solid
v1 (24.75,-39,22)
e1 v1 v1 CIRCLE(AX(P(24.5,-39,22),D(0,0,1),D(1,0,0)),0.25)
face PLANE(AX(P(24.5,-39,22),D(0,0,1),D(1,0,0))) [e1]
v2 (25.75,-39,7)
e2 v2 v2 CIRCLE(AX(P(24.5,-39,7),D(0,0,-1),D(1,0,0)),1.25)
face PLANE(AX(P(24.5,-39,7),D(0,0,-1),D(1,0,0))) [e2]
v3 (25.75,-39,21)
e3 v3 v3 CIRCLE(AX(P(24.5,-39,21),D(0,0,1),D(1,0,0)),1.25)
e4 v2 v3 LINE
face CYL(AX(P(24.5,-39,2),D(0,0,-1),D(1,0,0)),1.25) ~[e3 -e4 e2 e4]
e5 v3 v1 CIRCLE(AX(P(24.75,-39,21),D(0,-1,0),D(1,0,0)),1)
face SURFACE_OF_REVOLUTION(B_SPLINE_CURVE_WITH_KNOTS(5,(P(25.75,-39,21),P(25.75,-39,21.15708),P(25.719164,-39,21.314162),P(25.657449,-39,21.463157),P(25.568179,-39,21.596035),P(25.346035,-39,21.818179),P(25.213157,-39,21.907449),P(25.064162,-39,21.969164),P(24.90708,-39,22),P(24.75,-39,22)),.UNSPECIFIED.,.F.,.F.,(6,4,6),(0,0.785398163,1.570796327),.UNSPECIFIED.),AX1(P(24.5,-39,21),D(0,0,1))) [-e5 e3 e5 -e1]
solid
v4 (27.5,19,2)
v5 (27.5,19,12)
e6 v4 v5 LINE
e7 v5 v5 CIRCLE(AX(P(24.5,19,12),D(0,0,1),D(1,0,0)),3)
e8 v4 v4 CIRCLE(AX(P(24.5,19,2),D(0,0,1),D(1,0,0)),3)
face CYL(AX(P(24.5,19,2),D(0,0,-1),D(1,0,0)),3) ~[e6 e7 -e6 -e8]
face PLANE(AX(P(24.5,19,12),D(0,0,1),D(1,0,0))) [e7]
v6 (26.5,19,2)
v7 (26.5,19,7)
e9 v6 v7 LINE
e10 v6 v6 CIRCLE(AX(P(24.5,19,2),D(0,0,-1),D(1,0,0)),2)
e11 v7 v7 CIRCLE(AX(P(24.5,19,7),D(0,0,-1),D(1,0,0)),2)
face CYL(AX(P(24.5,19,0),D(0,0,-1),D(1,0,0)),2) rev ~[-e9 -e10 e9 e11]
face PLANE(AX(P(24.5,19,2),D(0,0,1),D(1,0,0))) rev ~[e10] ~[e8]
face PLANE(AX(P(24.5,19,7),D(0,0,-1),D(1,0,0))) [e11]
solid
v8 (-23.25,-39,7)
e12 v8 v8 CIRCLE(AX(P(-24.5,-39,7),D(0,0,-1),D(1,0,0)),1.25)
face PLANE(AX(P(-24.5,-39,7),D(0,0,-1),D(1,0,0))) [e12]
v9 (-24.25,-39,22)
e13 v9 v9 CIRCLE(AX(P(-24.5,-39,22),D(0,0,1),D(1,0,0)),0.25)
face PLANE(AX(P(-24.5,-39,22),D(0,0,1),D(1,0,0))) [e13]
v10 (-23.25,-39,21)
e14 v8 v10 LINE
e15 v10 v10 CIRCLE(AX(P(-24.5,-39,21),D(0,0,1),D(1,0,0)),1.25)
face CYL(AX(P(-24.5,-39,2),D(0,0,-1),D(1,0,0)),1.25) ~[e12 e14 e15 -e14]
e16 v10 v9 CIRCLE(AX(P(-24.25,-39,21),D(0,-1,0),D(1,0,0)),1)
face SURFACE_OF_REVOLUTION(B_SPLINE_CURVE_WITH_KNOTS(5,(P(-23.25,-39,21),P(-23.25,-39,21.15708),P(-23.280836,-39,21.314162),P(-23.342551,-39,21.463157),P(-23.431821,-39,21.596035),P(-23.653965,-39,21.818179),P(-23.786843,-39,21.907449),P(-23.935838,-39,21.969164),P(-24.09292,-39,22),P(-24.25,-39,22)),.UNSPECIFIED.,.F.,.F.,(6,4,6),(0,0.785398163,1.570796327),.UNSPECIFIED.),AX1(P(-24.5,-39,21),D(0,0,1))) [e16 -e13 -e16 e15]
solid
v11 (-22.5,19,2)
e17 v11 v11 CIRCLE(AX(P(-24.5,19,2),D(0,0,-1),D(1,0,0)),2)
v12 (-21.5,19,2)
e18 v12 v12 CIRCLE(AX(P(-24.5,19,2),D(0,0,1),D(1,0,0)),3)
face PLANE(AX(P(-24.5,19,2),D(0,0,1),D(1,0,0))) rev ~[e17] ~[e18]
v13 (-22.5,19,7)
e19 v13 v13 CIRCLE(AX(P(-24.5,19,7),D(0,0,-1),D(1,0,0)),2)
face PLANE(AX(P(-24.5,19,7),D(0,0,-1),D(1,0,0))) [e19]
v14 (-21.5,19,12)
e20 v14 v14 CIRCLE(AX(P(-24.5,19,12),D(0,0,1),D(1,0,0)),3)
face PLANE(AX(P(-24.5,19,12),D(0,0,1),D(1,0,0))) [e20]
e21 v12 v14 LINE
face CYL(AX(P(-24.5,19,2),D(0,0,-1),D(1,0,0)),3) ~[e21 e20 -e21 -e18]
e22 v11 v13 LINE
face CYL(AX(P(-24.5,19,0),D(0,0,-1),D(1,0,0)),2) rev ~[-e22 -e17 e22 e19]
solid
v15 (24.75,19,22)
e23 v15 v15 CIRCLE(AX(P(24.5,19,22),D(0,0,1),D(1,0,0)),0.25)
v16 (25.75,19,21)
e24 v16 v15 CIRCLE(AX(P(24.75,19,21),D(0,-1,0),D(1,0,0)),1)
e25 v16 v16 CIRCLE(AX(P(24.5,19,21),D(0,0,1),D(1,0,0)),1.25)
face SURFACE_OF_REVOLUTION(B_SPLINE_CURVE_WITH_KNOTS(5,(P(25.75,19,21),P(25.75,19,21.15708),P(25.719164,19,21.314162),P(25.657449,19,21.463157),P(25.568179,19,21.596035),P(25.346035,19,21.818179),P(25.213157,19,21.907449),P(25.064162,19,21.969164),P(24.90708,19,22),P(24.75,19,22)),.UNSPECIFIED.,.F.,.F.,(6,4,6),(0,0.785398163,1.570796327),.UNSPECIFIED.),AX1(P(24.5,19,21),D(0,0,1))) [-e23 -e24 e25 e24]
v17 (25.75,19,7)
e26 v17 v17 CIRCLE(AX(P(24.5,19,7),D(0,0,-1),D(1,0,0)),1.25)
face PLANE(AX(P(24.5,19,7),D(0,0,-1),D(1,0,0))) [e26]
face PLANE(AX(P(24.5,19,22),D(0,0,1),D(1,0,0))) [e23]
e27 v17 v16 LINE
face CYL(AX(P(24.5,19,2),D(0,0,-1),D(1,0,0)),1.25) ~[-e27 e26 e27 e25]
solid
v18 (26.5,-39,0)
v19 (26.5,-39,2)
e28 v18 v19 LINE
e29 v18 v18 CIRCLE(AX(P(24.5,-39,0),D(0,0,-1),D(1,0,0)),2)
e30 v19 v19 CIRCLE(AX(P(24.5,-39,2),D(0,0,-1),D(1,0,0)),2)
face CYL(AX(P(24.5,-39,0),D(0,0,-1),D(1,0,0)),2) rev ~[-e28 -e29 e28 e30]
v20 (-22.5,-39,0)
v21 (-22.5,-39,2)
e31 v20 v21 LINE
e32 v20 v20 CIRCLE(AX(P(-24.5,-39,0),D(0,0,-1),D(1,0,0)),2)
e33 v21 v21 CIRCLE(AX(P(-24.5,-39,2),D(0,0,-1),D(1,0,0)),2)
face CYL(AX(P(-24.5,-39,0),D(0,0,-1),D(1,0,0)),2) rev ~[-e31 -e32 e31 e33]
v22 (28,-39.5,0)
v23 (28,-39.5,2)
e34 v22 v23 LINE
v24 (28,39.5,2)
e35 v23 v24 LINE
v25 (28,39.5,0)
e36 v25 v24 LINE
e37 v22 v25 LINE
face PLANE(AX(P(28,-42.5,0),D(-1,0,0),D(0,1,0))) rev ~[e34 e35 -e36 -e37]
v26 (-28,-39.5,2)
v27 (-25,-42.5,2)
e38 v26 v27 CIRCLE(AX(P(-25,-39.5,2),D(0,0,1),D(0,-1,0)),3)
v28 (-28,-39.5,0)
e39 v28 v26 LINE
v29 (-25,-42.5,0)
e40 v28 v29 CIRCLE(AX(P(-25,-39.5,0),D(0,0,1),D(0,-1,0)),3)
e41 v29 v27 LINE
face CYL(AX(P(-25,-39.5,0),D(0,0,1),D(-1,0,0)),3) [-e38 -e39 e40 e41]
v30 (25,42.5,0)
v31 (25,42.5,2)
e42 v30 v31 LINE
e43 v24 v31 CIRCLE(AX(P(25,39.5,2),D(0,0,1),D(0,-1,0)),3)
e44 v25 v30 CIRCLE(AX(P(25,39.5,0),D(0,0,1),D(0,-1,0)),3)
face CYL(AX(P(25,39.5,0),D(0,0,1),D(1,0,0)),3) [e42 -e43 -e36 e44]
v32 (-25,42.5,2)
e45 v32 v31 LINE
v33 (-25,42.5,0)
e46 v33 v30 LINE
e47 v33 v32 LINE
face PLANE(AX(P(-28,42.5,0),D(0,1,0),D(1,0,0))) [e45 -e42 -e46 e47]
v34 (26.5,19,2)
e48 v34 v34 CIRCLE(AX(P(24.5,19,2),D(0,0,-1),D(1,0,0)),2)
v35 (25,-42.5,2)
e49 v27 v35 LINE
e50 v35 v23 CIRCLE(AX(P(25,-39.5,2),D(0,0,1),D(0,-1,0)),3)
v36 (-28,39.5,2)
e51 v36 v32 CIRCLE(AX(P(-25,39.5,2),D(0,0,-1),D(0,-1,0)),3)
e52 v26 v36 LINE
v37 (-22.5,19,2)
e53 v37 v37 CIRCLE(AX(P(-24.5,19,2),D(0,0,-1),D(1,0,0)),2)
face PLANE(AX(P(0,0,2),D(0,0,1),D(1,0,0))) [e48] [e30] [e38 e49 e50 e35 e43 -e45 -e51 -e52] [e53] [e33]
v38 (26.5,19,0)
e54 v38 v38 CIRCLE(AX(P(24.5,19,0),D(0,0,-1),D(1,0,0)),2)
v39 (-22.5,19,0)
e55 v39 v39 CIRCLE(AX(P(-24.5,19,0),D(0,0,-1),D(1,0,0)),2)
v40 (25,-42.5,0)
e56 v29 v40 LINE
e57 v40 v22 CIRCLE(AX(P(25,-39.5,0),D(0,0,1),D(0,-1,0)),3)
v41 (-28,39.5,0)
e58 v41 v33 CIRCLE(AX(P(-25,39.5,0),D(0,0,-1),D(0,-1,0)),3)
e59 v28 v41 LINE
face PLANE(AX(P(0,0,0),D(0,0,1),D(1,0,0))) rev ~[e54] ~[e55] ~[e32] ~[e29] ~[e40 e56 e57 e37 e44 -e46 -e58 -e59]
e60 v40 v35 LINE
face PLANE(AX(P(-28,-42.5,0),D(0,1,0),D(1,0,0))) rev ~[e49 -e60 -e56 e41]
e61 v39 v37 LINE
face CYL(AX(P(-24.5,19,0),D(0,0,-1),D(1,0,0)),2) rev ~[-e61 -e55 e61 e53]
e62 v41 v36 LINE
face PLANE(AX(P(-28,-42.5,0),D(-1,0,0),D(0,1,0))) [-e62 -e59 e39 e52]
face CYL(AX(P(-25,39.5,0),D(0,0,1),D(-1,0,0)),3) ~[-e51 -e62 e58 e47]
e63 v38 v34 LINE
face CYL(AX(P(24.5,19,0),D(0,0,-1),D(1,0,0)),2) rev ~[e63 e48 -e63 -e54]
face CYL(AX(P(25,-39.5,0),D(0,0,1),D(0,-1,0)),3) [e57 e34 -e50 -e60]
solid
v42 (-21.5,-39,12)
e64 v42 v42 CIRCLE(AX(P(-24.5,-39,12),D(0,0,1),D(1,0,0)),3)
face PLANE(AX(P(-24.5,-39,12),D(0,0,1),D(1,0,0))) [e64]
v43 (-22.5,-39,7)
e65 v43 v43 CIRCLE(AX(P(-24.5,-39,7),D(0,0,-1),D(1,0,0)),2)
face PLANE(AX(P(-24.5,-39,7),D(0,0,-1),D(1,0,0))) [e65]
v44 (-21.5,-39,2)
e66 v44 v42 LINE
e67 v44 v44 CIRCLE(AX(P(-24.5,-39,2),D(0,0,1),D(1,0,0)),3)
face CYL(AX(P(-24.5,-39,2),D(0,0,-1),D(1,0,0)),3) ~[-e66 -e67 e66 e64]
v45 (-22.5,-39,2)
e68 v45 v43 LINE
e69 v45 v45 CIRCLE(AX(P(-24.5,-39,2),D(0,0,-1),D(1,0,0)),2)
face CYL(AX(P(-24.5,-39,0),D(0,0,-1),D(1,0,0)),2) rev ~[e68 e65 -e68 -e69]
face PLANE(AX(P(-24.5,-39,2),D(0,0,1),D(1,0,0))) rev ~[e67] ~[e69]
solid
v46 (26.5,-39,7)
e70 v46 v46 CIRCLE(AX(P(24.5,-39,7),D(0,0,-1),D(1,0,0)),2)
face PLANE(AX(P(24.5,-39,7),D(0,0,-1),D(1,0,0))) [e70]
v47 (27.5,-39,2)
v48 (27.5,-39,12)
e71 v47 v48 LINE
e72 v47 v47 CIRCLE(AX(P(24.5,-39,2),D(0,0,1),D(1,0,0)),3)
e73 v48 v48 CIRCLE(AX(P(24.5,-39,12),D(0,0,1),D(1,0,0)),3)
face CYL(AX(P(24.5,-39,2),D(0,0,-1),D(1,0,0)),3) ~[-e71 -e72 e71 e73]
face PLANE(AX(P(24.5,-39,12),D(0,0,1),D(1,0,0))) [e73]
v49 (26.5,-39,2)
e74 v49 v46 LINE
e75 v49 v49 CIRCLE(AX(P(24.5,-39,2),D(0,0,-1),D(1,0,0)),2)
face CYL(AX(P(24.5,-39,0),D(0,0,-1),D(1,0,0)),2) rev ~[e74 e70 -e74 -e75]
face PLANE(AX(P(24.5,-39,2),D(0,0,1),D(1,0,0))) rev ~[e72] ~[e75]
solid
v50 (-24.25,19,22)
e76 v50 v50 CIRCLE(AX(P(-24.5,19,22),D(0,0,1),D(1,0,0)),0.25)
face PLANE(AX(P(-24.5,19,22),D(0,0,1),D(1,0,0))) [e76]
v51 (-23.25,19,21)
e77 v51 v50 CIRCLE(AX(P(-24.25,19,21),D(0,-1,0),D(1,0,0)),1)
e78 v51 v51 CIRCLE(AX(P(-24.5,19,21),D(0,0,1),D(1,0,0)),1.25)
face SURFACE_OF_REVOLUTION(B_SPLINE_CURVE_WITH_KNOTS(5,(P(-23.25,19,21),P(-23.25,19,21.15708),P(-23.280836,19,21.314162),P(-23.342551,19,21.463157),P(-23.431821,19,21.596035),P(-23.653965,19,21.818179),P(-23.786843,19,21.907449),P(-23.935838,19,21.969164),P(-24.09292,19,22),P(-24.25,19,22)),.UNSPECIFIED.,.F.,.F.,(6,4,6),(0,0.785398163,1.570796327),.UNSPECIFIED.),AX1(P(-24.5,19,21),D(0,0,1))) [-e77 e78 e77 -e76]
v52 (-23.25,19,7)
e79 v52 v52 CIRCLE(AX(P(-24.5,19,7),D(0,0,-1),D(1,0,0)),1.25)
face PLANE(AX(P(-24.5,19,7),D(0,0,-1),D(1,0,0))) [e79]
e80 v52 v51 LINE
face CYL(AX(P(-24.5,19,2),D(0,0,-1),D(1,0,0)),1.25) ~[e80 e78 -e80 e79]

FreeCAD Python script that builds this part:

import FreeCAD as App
import Part
import Sketcher

V = App.Vector
Q = App.Units.Quantity


def edges_at(feature, points):
    """Names of the edges that pass closest to the given points."""
    edges = feature.Shape.Edges
    near = lambda p: min(range(len(edges)), key=lambda i: edges[i].distToShape(Part.Vertex(*p))[0])
    return sorted({f"Edge{near(p) + 1}" for p in points})

doc = App.newDocument("Part")
body = doc.addObject("PartDesign::Body", "Body")

sketch1 = body.newObject("Sketcher::SketchObject", "Sketch")
sketch1.AttachmentSupport = (doc.getObject("XY_Plane"), [""])
sketch1.MapMode = "FlatFace"
sketch1.addGeometry([
    Part.LineSegment(V(-28, 42, 0), V(-28, -42, 0)),
    Part.LineSegment(V(-28, -42, 0), V(28, -42, 0)),
    Part.LineSegment(V(28, -42, 0), V(28, 42, 0)),
    Part.LineSegment(V(28, 42, 0), V(-28, 42, 0)),
], False)
sketch1.addConstraint([
    Sketcher.Constraint("Coincident", 0, 2, 1, 1),
    Sketcher.Constraint("Coincident", 1, 2, 2, 1),
    Sketcher.Constraint("Coincident", 2, 2, 3, 1),
    Sketcher.Constraint("Coincident", 3, 2, 0, 1),
    Sketcher.Constraint("Vertical", 0),
    Sketcher.Constraint("Horizontal", 1),
    Sketcher.Constraint("Vertical", 2),
    Sketcher.Constraint("Horizontal", 3),
    Sketcher.Constraint("Symmetric", 0, 2, 2, 2, -1, 1),
    Sketcher.Constraint("DistanceX", 1, 1, 1, 2, Q("56 mm")),
    Sketcher.Constraint("DistanceY", 0, 2, 0, 1, Q("85 mm")),
])
pad1 = body.newObject("PartDesign::Pad", "Pad")
pad1.Profile = sketch1
pad1.Length = 2
doc.recompute()

fillet = body.newObject("PartDesign::Fillet", "Fillet")
fillet.Base = (pad1, edges_at(pad1, [
    (-28, 42.5, 1),
    (28, 42.5, 1),
    (28, -42.5, 1),
    (-28, -42.5, 1),
]))
fillet.Radius = 3
body2 = doc.addObject("PartDesign::Body", "Body001")
body2.AllowCompound = True

sketch2 = body2.newObject("Sketcher::SketchObject", "Sketch001")
sketch2.AttachmentSupport = (doc.getObject("XY_Plane001"), [""])
sketch2.MapMode = "FlatFace"
sketch2.AttachmentOffset = App.Placement(V(0, 0, 2), App.Rotation())
sketch2.addGeometry([
    Part.Circle(V(-24.5, -39, 0), V(0, 0, 1), 1.2),
    Part.Circle(V(24.5, -39, 0), V(0, 0, 1), 1.2),
    Part.Circle(V(-24.5, 19, 0), V(0, 0, 1), 1.2),
    Part.Circle(V(24.5, 19, 0), V(0, 0, 1), 1.2),
], False)
sketch2.addConstraint([
    Sketcher.Constraint("Equal", 0, 1),
    Sketcher.Constraint("Equal", 1, 2),
    Sketcher.Constraint("Equal", 2, 3),
    Sketcher.Constraint("Symmetric", 0, 3, 1, 3, -2),
    Sketcher.Constraint("Symmetric", 2, 3, 3, 3, -2),
    Sketcher.Constraint("Vertical", 0, 3, 2, 3),
    Sketcher.Constraint("Diameter", 0, Q("2.5 mm")),
    Sketcher.Constraint("DistanceY", 0, 3, -1, 1, Q("39 mm")),
    Sketcher.Constraint("DistanceY", -1, 1, 2, 3, Q("19 mm")),
    Sketcher.Constraint("DistanceX", 0, 3, 1, 3, Q("49 mm")),
])
pad2 = body2.newObject("PartDesign::Pad", "Pad001")
pad2.Profile = sketch2
pad2.Length = 20
body3 = doc.addObject("PartDesign::Body", "Body002")
body3.AllowCompound = True

sketch3 = body3.newObject("Sketcher::SketchObject", "Sketch002")
sketch3.AttachmentSupport = (doc.getObject("XY_Plane002"), [""])
sketch3.MapMode = "FlatFace"
sketch3.AttachmentOffset = App.Placement(V(0, 0, 2), App.Rotation())
sketch3.addGeometry([
    Part.Circle(V(-24.5, 19, 0), V(0, 0, 1), 3),
    Part.Circle(V(24.5, 19, 0), V(0, 0, 1), 3),
    Part.Circle(V(-24.5, -39, 0), V(0, 0, 1), 3),
    Part.Circle(V(24.5, -39, 0), V(0, 0, 1), 3),
], False)
sketch3.addConstraint([
    Sketcher.Constraint("Equal", 0, 1),
    Sketcher.Constraint("Equal", 1, 2),
    Sketcher.Constraint("Equal", 2, 3),
    Sketcher.Constraint("Symmetric", 0, 3, 1, 3, -2),
    Sketcher.Constraint("Symmetric", 2, 3, 3, 3, -2),
    Sketcher.Constraint("Vertical", 0, 3, 2, 3),
    Sketcher.Constraint("Diameter", 0, Q("6 mm")),
    Sketcher.Constraint("DistanceY", -1, 1, 0, 3, Q("19 mm")),
    Sketcher.Constraint("DistanceY", 2, 3, -1, 1, Q("39 mm")),
    Sketcher.Constraint("DistanceX", 0, 3, 1, 3, Q("49 mm")),
])
pad3 = body3.newObject("PartDesign::Pad", "Pad002")
pad3.Profile = sketch3
pad3.Length = 10
body4 = doc.addObject("PartDesign::Body", "Body003")
body4.AllowCompound = True

sketch4 = body4.newObject("Sketcher::SketchObject", "Sketch003")
sketch4.AttachmentSupport = (doc.getObject("XY_Plane003"), [""])
sketch4.MapMode = "FlatFace"
sketch4.addGeometry([
    Part.Circle(V(-24.5, -39, 0), V(0, 0, 1), 2),
    Part.Circle(V(24.5, -39, 0), V(0, 0, 1), 2),
    Part.Circle(V(-24.5, 19, 0), V(0, 0, 1), 2),
    Part.Circle(V(24.5, 19, 0), V(0, 0, 1), 2),
], False)
sketch4.addConstraint([
    Sketcher.Constraint("Equal", 0, 1),
    Sketcher.Constraint("Equal", 1, 2),
    Sketcher.Constraint("Equal", 2, 3),
    Sketcher.Constraint("Symmetric", 0, 3, 1, 3, -2),
    Sketcher.Constraint("Symmetric", 2, 3, 3, 3, -2),
    Sketcher.Constraint("Vertical", 0, 3, 2, 3),
    Sketcher.Constraint("Diameter", 0, Q("4 mm")),
    Sketcher.Constraint("DistanceY", 0, 3, -1, 1, Q("39 mm")),
    Sketcher.Constraint("DistanceY", -1, 1, 2, 3, Q("19 mm")),
    Sketcher.Constraint("DistanceX", 0, 3, 1, 3, Q("49 mm")),
])
pad4 = body4.newObject("PartDesign::Pad", "Pad003")
pad4.Profile = sketch4
pad4.Length = 7
doc.recompute()

body5 = doc.addObject("PartDesign::Body", "Body004")
body5.BaseFeature = body4
boolean = body.newObject("PartDesign::Boolean", "Boolean")
boolean.Type = "Cut"
boolean.addObjects([body5])
doc.recompute()
body2.AllowCompound = True
doc.recompute()

body6 = doc.addObject("PartDesign::Body", "Body005")
body6.BaseFeature = body4
boolean2 = body2.newObject("PartDesign::Boolean", "Boolean001")
boolean2.Type = "Cut"
boolean2.addObjects([body6])
doc.recompute()

fillet2 = body2.newObject("PartDesign::Fillet", "Fillet001")
fillet2.Base = (boolean2, edges_at(boolean2, [
    (-25.75, 19, 22),
    (-25.75, -39, 22),
    (23.25, -39, 22),
    (23.25, 19, 22),
]))
fillet2.Radius = 1
body3.AllowCompound = True
doc.recompute()

boolean3 = body3.newObject("PartDesign::Boolean", "Boolean002")
boolean3.Type = "Cut"
boolean3.addObjects([body4])

doc.recompute()
